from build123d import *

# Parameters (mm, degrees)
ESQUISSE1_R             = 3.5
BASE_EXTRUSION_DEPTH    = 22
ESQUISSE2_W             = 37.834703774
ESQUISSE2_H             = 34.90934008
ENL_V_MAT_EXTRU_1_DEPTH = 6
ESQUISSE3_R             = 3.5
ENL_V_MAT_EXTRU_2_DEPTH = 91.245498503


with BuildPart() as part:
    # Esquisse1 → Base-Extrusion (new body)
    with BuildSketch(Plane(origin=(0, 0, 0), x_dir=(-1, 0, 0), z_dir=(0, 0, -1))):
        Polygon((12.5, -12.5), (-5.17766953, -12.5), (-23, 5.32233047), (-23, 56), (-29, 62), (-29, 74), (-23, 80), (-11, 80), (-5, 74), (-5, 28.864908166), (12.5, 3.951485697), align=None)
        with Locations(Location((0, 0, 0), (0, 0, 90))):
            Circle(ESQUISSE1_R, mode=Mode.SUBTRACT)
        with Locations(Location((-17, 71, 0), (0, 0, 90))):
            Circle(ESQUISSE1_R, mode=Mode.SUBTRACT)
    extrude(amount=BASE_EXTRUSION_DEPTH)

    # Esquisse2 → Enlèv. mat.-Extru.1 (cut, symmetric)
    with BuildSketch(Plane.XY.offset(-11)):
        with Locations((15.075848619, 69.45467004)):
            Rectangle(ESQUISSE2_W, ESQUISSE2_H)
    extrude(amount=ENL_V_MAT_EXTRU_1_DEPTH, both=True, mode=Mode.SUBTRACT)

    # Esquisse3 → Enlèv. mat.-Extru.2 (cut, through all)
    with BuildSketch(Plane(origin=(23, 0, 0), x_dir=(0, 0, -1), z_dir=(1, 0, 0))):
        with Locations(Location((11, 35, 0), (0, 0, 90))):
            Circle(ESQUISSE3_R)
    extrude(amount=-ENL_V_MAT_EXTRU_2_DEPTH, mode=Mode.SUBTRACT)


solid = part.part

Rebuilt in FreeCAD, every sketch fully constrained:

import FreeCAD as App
import Part
import Sketcher

V = App.Vector


def add_polygon(sketch, points):
    """Adds a closed chain of lines whose ends are joined by coincident constraints."""
    first, n = sketch.GeometryCount, len(points)
    for a, b in zip(points, points[1:] + points[:1]):
        sketch.addGeometry(Part.LineSegment(App.Vector(*a, 0), App.Vector(*b, 0)), False)
    for i in range(n):
        sketch.addConstraint(Sketcher.Constraint("Coincident", first + i, 2, first + (i + 1) % n, 1))

doc = App.newDocument("Part")
body = doc.addObject("PartDesign::Body", "Body")

# Sketch on XY plane
sketch1 = body.newObject("Sketcher::SketchObject", "Sketch")
sketch1.AttachmentSupport = (doc.getObject("XY_Plane"), [""])
sketch1.MapMode = "FlatFace"
add_polygon(sketch1, [(5.17767, -12.5), (-12.5, -12.5), (-12.5, 3.951486), (5, 28.864908), (5, 74), (11, 80), (23, 80), (29, 74), (29, 62), (23, 56), (23, 5.32233)])  # lines 0-10
sketch1.addGeometry(Part.Circle(V(0, 0, 0), V(0, 0, 1), 3.5), False)  # 11
sketch1.addGeometry(Part.Circle(V(17, 71, 0), V(0, 0, 1), 3.5), False)  # 12
sketch1.addConstraint(Sketcher.Constraint("Horizontal", 0))
sketch1.addConstraint(Sketcher.Constraint("Vertical", 1))
sketch1.addConstraint(Sketcher.Constraint("Vertical", 3))
sketch1.addConstraint(Sketcher.Constraint("Horizontal", 5))
sketch1.addConstraint(Sketcher.Constraint("Vertical", 7))
sketch1.addConstraint(Sketcher.Constraint("Vertical", 9))
sketch1.addConstraint(Sketcher.Constraint("Coincident", 11, 3, -1, 1))
sketch1.addConstraint(Sketcher.Constraint("Equal", 11, 12))
sketch1.addConstraint(Sketcher.Constraint("Perpendicular", 4, 6))
sketch1.addConstraint(Sketcher.Constraint("Perpendicular", 6, 8))
sketch1.addConstraint(Sketcher.Constraint("Parallel", 8, 10))
sketch1.addConstraint(Sketcher.Constraint("Horizontal", 3, 2, 6, 2))
sketch1.addConstraint(Sketcher.Constraint("Vertical", 5, 2, 8, 2))
sketch1.addConstraint(Sketcher.Constraint("Equal", 5, 7))
sketch1.addConstraint(Sketcher.Constraint("Equal", 4, 6))
sketch1.addConstraint(Sketcher.Constraint("Diameter", 11, 7.0))
sketch1.addConstraint(Sketcher.Constraint("DistanceX", 5, 1, 5, 2, 12.0))
sketch1.addConstraint(Sketcher.Constraint("DistanceX", -1, 1, 12, 3, 17.0))
sketch1.addConstraint(Sketcher.Constraint("DistanceY", -1, 1, 12, 3, 71.0))
sketch1.addConstraint(Sketcher.Constraint("DistanceX", -1, 1, 2, 2, 5.0))
sketch1.addConstraint(Sketcher.Constraint("DistanceY", -1, 1, 3, 2, 74.0))
sketch1.addConstraint(Sketcher.Constraint("DistanceX", -1, 1, 4, 2, 11.0))
sketch1.addConstraint(Sketcher.Constraint("DistanceX", 0, 2, -1, 1, 12.5))
sketch1.addConstraint(Sketcher.Constraint("DistanceY", 0, 2, -1, 1, 12.5))
sketch1.addConstraint(Sketcher.Constraint("DistanceX", 0, 2, 0, 1, 17.67767))
sketch1.addConstraint(Sketcher.Constraint("DistanceY", 3, 1, 3, 2, 45.135092))
sketch1.addConstraint(Sketcher.Constraint("DistanceY", 1, 1, 1, 2, 16.451486))
pad1 = body.newObject("PartDesign::Pad", "Pad")
pad1.Profile = sketch1
pad1.Length = 22
pad1.Reversed = True

# Sketch on XY plane
sketch2 = body.newObject("Sketcher::SketchObject", "Sketch001")
sketch2.AttachmentSupport = (doc.getObject("XY_Plane"), [""])
sketch2.MapMode = "FlatFace"
sketch2.AttachmentOffset = App.Placement(V(0, 0, -11), App.Rotation())
add_polygon(sketch2, [(-3.841503, 86.90934), (-3.841503, 52), (33.993201, 52), (33.993201, 86.90934)])  # lines 0-3
sketch2.addConstraint(Sketcher.Constraint("Vertical", 0))
sketch2.addConstraint(Sketcher.Constraint("Horizontal", 1))
sketch2.addConstraint(Sketcher.Constraint("Vertical", 2))
sketch2.addConstraint(Sketcher.Constraint("Horizontal", 3))
sketch2.addConstraint(Sketcher.Constraint("DistanceY", -1, 1, 0, 2, 52.0))
sketch2.addConstraint(Sketcher.Constraint("DistanceY", 0, 2, 0, 1, 34.90934))
sketch2.addConstraint(Sketcher.Constraint("DistanceX", -1, 1, 1, 2, 33.993201))
sketch2.addConstraint(Sketcher.Constraint("DistanceX", 1, 1, 1, 2, 37.834704))
pocket1 = body.newObject("PartDesign::Pocket", "Pocket")
pocket1.Profile = sketch2
pocket1.Length = 12
pocket1.Midplane = True

# Sketch on YZ plane
sketch3 = body.newObject("Sketcher::SketchObject", "Sketch002")
sketch3.AttachmentSupport = (doc.getObject("YZ_Plane"), [""])
sketch3.MapMode = "FlatFace"
sketch3.AttachmentOffset = App.Placement(V(0, 0, 23), App.Rotation())
sketch3.addGeometry(Part.Circle(V(35, -11, 0), V(0, 0, 1), 3.5), False)
sketch3.addConstraint(Sketcher.Constraint("Diameter", 0, 7.0))
sketch3.addConstraint(Sketcher.Constraint("DistanceX", -1, 1, 0, 3, 35.0))
sketch3.addConstraint(Sketcher.Constraint("DistanceY", 0, 3, -1, 1, 11.0))
pocket2 = body.newObject("PartDesign::Pocket", "Pocket001")
pocket2.Profile = sketch3
pocket2.Type = "ThroughAll"

doc.recompute()
